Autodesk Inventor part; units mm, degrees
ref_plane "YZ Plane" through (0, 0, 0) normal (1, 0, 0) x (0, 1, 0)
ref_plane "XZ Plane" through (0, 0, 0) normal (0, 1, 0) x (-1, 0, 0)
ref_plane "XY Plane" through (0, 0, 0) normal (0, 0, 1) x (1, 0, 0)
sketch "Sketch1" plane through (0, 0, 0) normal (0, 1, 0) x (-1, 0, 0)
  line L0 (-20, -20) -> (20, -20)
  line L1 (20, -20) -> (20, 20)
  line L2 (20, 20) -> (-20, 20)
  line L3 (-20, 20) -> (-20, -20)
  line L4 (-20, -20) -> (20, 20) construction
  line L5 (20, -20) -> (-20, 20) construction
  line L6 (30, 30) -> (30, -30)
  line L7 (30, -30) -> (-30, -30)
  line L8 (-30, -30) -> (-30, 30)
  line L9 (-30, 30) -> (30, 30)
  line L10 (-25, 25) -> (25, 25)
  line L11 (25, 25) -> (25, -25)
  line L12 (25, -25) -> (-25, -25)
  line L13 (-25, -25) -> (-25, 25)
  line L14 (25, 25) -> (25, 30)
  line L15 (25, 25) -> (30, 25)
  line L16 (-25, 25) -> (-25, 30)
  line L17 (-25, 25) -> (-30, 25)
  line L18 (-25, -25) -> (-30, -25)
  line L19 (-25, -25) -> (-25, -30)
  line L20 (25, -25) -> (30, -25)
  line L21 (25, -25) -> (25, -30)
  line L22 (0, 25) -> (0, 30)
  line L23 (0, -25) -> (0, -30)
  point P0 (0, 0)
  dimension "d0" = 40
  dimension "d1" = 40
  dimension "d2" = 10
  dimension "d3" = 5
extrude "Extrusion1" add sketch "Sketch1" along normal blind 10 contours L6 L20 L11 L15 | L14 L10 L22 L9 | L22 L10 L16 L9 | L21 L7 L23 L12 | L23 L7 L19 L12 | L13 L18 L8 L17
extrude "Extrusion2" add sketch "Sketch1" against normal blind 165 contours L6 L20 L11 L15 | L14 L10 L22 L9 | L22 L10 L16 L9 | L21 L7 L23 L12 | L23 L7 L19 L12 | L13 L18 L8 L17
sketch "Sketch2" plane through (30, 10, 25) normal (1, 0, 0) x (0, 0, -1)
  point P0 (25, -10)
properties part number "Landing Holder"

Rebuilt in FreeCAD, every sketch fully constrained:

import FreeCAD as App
import Part
import Sketcher
from FreeCAD import Vector


def add_polygon(sketch, points):
    """Adds a closed chain of lines whose ends are joined by coincident constraints."""
    first, n = sketch.GeometryCount, len(points)
    for a, b in zip(points, points[1:] + points[:1]):
        sketch.addGeometry(Part.LineSegment(App.Vector(*a, 0), App.Vector(*b, 0)), False)
    for i in range(n):
        sketch.addConstraint(Sketcher.Constraint("Coincident", first + i, 2, first + (i + 1) % n, 1))

doc = App.newDocument("Part")
body = doc.addObject("PartDesign::Body", "Body")
body.AllowCompound = True

# Sketch on XZ plane
sketch1 = doc.addObject("Sketcher::SketchObject", "Sketch")
body.addObject(sketch1)
sketch1.AttachmentSupport = (doc.XZ_Plane, [""])
sketch1.MapMode = "FlatFace"
add_polygon(sketch1, [(-30, -25), (-30, 25), (-25, 25), (-25, -25)])  # lines 0-3
add_polygon(sketch1, [(-25, 25), (-25, 30), (25, 30), (25, 25)])  # lines 4-7
add_polygon(sketch1, [(-25, -30), (-25, -25), (25, -25), (25, -30)])  # lines 8-11
add_polygon(sketch1, [(25, -25), (25, 25), (30, 25), (30, -25)])  # lines 12-15
sketch1.addConstraint([
    Sketcher.Constraint("Vertical", 0),
    Sketcher.Constraint("Horizontal", 1),
    Sketcher.Constraint("Vertical", 2),
    Sketcher.Constraint("Horizontal", 3),
    Sketcher.Constraint("Vertical", 4),
    Sketcher.Constraint("Horizontal", 5),
    Sketcher.Constraint("Vertical", 6),
    Sketcher.Constraint("Horizontal", 7),
    Sketcher.Constraint("Vertical", 8),
    Sketcher.Constraint("Horizontal", 9),
    Sketcher.Constraint("Vertical", 10),
    Sketcher.Constraint("Horizontal", 11),
    Sketcher.Constraint("Vertical", 12),
    Sketcher.Constraint("Horizontal", 13),
    Sketcher.Constraint("Vertical", 14),
    Sketcher.Constraint("Horizontal", 15),
    Sketcher.Constraint("Coincident", 7, 2, 1, 2),
    Sketcher.Constraint("Coincident", 8, 2, 2, 2),
    Sketcher.Constraint("Coincident", 12, 2, 6, 2),
    Sketcher.Constraint("Coincident", 15, 2, 9, 2),
    Sketcher.Constraint("Symmetric", 2, 2, 6, 2, -1, 1),
    Sketcher.Constraint("Equal", 3, 13),
    Sketcher.Constraint("Equal", 11, 0),
    Sketcher.Constraint("Equal", 15, 4),
    Sketcher.Constraint("Equal", 6, 8),
    Sketcher.Constraint("DistanceX", 1, 1, 1, 2, 5.0),
    Sketcher.Constraint("DistanceX", 5, 1, 5, 2, 50.0),
])
pad1 = doc.addObject("PartDesign::Pad", "Pad")
body.addObject(pad1)
pad1.Profile = sketch1
pad1.Length = 10
pad1.Reversed = True

# Sketch on XZ plane
sketch2 = doc.addObject("Sketcher::SketchObject", "Sketch001")
body.addObject(sketch2)
sketch2.AttachmentSupport = (doc.XZ_Plane, [""])
sketch2.MapMode = "FlatFace"
add_polygon(sketch2, [(-30, -25), (-30, 25), (-25, 25), (-25, -25)])  # lines 0-3
add_polygon(sketch2, [(-25, 25), (-25, 30), (25, 30), (25, 25)])  # lines 4-7
add_polygon(sketch2, [(-25, -30), (-25, -25), (25, -25), (25, -30)])  # lines 8-11
add_polygon(sketch2, [(25, -25), (25, 25), (30, 25), (30, -25)])  # lines 12-15
sketch2.addConstraint([
    Sketcher.Constraint("Vertical", 0),
    Sketcher.Constraint("Horizontal", 1),
    Sketcher.Constraint("Vertical", 2),
    Sketcher.Constraint("Horizontal", 3),
    Sketcher.Constraint("Vertical", 4),
    Sketcher.Constraint("Horizontal", 5),
    Sketcher.Constraint("Vertical", 6),
    Sketcher.Constraint("Horizontal", 7),
    Sketcher.Constraint("Vertical", 8),
    Sketcher.Constraint("Horizontal", 9),
    Sketcher.Constraint("Vertical", 10),
    Sketcher.Constraint("Horizontal", 11),
    Sketcher.Constraint("Vertical", 12),
    Sketcher.Constraint("Horizontal", 13),
    Sketcher.Constraint("Vertical", 14),
    Sketcher.Constraint("Horizontal", 15),
    Sketcher.Constraint("Coincident", 7, 2, 1, 2),
    Sketcher.Constraint("Coincident", 8, 2, 2, 2),
    Sketcher.Constraint("Coincident", 12, 2, 6, 2),
    Sketcher.Constraint("Coincident", 15, 2, 9, 2),
    Sketcher.Constraint("Symmetric", 2, 2, 6, 2, -1, 1),
    Sketcher.Constraint("Equal", 3, 13),
    Sketcher.Constraint("Equal", 11, 0),
    Sketcher.Constraint("Equal", 15, 4),
    Sketcher.Constraint("Equal", 6, 8),
    Sketcher.Constraint("DistanceX", 1, 1, 1, 2, 5.0),
    Sketcher.Constraint("DistanceX", 5, 1, 5, 2, 50.0),
])
pad2 = doc.addObject("PartDesign::Pad", "Pad001")
body.addObject(pad2)
pad2.Profile = sketch2
pad2.Length = 165

doc.recompute()
